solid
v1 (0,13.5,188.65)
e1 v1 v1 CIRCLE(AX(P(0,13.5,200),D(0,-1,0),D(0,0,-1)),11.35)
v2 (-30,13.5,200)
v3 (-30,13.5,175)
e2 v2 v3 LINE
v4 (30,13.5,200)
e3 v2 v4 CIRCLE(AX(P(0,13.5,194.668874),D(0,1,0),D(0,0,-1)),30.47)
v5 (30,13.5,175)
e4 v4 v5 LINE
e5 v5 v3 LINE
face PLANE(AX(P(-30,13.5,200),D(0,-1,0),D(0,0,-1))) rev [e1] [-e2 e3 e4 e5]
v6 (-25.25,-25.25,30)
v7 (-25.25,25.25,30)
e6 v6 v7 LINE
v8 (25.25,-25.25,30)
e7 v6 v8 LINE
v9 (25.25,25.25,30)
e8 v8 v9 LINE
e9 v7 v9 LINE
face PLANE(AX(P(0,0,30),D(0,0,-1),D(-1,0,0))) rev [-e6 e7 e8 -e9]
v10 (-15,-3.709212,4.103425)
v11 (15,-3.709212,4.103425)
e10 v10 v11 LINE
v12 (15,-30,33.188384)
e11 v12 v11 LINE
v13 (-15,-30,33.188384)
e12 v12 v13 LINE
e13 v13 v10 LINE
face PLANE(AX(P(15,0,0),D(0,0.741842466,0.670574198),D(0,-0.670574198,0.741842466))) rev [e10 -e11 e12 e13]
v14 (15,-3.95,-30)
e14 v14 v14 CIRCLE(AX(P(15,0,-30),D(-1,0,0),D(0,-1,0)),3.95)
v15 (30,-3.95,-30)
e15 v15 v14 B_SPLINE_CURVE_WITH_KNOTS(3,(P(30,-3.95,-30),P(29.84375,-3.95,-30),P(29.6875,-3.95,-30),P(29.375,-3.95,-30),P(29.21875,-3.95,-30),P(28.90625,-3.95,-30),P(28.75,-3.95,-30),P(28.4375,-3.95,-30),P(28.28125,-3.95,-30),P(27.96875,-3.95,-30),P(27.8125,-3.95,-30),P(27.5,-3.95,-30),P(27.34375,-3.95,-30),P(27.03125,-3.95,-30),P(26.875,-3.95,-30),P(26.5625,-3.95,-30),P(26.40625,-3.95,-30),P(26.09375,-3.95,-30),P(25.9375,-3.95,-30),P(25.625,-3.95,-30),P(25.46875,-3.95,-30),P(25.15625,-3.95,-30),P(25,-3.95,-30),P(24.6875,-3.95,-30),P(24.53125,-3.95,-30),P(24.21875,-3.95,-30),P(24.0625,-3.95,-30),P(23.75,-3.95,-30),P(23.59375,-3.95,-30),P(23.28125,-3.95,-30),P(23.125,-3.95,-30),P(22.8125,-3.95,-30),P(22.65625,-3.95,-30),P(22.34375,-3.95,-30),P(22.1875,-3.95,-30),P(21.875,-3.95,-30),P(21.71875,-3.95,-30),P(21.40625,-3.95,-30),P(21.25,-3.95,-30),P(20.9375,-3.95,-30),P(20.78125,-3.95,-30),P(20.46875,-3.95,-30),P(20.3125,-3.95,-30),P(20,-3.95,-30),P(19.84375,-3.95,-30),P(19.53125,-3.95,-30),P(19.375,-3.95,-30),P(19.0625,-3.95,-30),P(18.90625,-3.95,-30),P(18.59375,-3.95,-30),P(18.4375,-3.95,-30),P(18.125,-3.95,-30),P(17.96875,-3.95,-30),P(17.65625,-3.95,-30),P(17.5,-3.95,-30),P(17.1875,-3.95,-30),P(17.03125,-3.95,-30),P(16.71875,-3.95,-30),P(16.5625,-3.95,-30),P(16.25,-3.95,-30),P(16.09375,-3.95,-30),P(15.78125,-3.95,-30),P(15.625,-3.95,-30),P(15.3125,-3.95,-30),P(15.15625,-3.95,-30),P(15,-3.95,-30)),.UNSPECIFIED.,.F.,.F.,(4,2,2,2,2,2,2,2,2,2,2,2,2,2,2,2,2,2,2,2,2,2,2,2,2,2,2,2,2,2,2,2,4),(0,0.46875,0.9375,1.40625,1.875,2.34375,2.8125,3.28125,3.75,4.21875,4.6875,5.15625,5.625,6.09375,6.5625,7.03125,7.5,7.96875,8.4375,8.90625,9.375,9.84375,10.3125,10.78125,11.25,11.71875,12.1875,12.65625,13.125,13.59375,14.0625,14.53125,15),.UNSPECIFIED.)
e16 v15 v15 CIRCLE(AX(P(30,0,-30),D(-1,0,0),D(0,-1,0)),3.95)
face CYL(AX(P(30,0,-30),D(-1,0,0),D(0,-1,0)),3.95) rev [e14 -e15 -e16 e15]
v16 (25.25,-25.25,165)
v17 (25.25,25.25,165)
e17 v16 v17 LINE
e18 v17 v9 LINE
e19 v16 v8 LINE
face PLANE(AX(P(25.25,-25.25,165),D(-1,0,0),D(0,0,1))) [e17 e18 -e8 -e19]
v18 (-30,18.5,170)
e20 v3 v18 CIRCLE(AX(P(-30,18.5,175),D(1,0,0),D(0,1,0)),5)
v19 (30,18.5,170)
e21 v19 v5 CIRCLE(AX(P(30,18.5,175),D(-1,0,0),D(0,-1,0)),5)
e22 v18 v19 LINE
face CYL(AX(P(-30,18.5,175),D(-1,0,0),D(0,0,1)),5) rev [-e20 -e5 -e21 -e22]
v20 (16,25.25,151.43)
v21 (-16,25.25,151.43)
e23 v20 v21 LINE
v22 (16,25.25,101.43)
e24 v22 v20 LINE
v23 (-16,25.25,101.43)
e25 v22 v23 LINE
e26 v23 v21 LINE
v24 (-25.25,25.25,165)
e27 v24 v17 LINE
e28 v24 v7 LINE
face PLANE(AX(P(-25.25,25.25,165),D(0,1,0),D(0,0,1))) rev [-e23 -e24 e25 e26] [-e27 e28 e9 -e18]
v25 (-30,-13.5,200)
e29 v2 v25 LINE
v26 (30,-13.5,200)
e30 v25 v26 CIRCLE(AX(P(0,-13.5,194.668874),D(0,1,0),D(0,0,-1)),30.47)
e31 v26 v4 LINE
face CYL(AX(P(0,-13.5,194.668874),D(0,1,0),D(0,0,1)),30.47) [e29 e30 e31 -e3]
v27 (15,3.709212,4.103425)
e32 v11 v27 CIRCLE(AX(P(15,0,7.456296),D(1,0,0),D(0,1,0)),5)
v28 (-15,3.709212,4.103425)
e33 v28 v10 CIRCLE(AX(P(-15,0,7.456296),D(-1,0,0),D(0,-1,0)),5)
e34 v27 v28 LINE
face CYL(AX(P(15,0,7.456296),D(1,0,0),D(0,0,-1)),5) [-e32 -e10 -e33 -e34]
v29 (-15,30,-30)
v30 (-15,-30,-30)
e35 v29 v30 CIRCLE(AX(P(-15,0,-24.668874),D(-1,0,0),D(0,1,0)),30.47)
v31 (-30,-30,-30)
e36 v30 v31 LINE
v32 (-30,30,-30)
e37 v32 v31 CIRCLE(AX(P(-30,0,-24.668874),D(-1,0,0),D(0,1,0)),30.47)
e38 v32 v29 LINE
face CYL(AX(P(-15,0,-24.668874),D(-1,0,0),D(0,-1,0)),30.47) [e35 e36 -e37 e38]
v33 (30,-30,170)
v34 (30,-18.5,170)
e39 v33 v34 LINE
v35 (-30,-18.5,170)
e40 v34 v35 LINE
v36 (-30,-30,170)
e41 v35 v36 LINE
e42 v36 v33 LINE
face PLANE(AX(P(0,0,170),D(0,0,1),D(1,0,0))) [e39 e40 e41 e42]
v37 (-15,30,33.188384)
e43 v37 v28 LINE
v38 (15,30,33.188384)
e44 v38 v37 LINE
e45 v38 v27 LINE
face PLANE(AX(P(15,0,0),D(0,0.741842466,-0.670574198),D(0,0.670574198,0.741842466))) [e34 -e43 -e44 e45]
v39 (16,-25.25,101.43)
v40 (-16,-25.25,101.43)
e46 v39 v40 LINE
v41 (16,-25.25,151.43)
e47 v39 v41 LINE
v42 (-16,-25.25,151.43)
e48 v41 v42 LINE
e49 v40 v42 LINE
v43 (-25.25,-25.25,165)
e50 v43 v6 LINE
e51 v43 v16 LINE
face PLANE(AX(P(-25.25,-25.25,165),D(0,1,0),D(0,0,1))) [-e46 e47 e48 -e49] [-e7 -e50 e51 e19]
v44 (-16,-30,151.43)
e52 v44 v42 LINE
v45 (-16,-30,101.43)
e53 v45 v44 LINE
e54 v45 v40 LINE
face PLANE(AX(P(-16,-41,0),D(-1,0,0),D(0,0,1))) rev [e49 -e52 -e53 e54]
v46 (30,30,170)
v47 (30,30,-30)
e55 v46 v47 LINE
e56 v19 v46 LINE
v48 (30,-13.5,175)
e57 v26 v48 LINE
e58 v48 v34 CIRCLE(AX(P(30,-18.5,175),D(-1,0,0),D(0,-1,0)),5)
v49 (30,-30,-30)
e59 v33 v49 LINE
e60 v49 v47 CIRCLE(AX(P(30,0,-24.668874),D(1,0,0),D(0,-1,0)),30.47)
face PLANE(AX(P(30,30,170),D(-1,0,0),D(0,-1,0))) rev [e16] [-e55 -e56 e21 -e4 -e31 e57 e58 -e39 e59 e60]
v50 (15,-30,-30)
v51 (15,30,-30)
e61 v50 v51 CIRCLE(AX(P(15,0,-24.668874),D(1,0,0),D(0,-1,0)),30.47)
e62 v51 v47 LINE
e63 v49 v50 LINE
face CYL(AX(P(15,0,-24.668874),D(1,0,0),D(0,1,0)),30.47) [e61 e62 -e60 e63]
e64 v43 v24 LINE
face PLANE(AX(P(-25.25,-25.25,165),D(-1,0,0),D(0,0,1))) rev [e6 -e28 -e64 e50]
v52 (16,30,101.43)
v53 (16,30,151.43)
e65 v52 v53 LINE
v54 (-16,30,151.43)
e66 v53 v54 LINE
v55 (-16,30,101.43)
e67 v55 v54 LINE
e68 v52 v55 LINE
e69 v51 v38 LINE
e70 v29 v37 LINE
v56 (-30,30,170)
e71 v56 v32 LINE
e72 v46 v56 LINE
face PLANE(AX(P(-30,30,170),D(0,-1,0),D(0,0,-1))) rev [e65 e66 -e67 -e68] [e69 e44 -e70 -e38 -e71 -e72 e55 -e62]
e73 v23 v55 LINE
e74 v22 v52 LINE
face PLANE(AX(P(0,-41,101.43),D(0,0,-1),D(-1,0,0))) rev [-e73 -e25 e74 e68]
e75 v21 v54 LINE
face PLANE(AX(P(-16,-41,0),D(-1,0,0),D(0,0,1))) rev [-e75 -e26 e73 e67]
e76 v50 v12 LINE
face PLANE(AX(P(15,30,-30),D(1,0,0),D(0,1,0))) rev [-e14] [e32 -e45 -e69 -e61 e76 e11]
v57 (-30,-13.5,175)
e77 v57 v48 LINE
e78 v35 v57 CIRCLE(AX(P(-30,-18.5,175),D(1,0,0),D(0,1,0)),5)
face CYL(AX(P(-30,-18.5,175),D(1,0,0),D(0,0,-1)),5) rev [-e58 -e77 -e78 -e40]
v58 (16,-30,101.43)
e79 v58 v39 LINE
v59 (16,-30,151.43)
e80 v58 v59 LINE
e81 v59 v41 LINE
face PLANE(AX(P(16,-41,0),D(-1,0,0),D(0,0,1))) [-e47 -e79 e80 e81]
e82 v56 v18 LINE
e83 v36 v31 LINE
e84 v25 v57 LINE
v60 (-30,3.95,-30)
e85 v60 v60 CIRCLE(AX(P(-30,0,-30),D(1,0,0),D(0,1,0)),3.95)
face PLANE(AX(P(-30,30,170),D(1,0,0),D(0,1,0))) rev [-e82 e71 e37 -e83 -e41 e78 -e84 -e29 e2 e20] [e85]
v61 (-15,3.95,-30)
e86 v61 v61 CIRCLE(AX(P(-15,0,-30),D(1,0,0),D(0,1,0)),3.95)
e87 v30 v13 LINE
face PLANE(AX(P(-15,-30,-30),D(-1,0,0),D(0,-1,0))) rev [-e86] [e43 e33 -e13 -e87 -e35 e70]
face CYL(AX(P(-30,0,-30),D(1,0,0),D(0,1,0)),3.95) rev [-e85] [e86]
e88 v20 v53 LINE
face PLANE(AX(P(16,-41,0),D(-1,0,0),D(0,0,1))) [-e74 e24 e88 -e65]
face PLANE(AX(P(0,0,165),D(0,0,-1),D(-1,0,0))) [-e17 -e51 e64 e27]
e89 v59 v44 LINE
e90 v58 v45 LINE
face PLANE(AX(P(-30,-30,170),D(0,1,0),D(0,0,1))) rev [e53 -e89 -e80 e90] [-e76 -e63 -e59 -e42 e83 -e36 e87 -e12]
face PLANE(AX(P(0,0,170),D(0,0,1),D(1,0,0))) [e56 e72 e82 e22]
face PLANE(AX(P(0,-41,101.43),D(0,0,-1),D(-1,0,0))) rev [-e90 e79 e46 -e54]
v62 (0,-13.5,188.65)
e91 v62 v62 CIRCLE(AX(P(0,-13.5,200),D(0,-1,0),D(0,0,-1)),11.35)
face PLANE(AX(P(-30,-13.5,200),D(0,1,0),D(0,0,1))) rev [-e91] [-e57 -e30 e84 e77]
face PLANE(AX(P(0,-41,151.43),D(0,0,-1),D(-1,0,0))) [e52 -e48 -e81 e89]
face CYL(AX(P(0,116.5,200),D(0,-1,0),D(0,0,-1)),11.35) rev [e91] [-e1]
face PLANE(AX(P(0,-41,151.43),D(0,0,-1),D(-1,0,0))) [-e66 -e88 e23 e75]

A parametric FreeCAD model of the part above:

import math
import FreeCAD as App
import Part
import Sketcher
from FreeCAD import Vector
Q = App.Units.Quantity


def edges_at(feature, points):
    """Names of the edges that pass closest to the given points."""
    edges = feature.Shape.Edges
    near = lambda p: min(range(len(edges)), key=lambda i: edges[i].distToShape(Part.Vertex(*p))[0])
    return sorted({f"Edge{near(p) + 1}" for p in points})


def add_polygon(sketch, points):
    """Adds a closed chain of lines whose ends are joined by coincident constraints."""
    first, n = sketch.GeometryCount, len(points)
    for a, b in zip(points, points[1:] + points[:1]):
        sketch.addGeometry(Part.LineSegment(App.Vector(*a, 0), App.Vector(*b, 0)), False)
    for i in range(n):
        sketch.addConstraint(Sketcher.Constraint("Coincident", first + i, 2, first + (i + 1) % n, 1))

doc = App.newDocument("Part")
params = doc.addObject("Spreadsheet::Sheet", "Params")
for row, (alias, value) in enumerate([
    ("sketch1_width", "60 mm"),
    ("pad1_length", "170 mm"),
    ("sketch2_width", "15 mm"),
    ("sketch2_height", "60 mm"),
    ("pad2_length", "30 mm"),
    ("sketch3_width", "60 mm"),
    ("sketch3_radius", "30.47 mm"),
    ("pad3_length", "15 mm"),
    ("sketch4_width", "60 mm"),
    ("sketch4_radius", "30.47 mm"),
    ("pad4_length", "15 mm"),
    ("sketch5_width", "60 mm"),
    ("sketch5_height", "27 mm"),
    ("pad5_length", "30 mm"),
    ("sketch6_width", "60 mm"),
    ("sketch6_radius", "30.47 mm"),
    ("pad6_length", "27 mm"),
    ("sketch7_width", "50.5 mm"),
    ("pocket1_length", "5 mm"),
    ("pocket1_length2", "130 mm"),
    ("sketch8_diameter", "22.7 mm"),
    ("pocket2_length", "130 mm"),
    ("sketch9_diameter", "7.9 mm"),
    ("sketch10_diameter", "7.9 mm"),
    ("sketch11_width", "30 mm"),
    ("pocket5_length", "30 mm"),
    ("fillet_radius", "5 mm"),
    ("fillet2_radius", "5 mm"),
    ("sketch12_width", "32 mm"),
    ("sketch12_height", "50 mm"),
    ("pocket6_length", "71 mm"),
], start=1):
    params.set(f"A{row}", alias)
    params.set(f"B{row}", "=" + value)
    params.setAlias(f"B{row}", alias)

body = doc.addObject("PartDesign::Body", "Body")

# Sketch on XY plane
sketch1 = doc.addObject("Sketcher::SketchObject", "Sketch")
body.addObject(sketch1)
sketch1.AttachmentSupport = (doc.XY_Plane, [""])
sketch1.MapMode = "FlatFace"
add_polygon(sketch1, [(-30, 30), (-30, -30), (30, -30), (30, 30)])  # lines 0-3
sketch1.addConstraint(Sketcher.Constraint("Vertical", 0))
sketch1.addConstraint(Sketcher.Constraint("Horizontal", 1))
sketch1.addConstraint(Sketcher.Constraint("Vertical", 2))
sketch1.addConstraint(Sketcher.Constraint("Horizontal", 3))
sketch1.addConstraint(Sketcher.Constraint("Symmetric", 0, 2, 2, 2, -1, 1))
sketch1.addConstraint(Sketcher.Constraint("Equal", 3, 0))
sketch1.addConstraint(Sketcher.Constraint("DistanceX", 1, 1, 1, 2, Q("60 mm")))
sketch1.setExpression("Constraints[10]", "Params.sketch1_width")
pad1 = doc.addObject("PartDesign::Pad", "Pad")
body.addObject(pad1)
pad1.Profile = sketch1
pad1.setExpression("Length", "Params.pad1_length")

# Sketch on XY plane
sketch2 = doc.addObject("Sketcher::SketchObject", "Sketch001")
body.addObject(sketch2)
sketch2.AttachmentSupport = (doc.XY_Plane, [""])
sketch2.MapMode = "FlatFace"
add_polygon(sketch2, [(-15, 30), (-15, -30), (-30, -30), (-30, 30)])  # lines 0-3
add_polygon(sketch2, [(30, 30), (30, -30), (15, -30), (15, 30)])  # lines 4-7
sketch2.addConstraint(Sketcher.Constraint("Vertical", 0))
sketch2.addConstraint(Sketcher.Constraint("Horizontal", 1))
sketch2.addConstraint(Sketcher.Constraint("Vertical", 2))
sketch2.addConstraint(Sketcher.Constraint("Horizontal", 3))
sketch2.addConstraint(Sketcher.Constraint("Vertical", 4))
sketch2.addConstraint(Sketcher.Constraint("Horizontal", 5))
sketch2.addConstraint(Sketcher.Constraint("Vertical", 6))
sketch2.addConstraint(Sketcher.Constraint("Horizontal", 7))
sketch2.addConstraint(Sketcher.Constraint("Symmetric", 2, 2, 4, 2, -1, 1))
sketch2.addConstraint(Sketcher.Constraint("Symmetric", 0, 2, 6, 2, -1, 1))
sketch2.addConstraint(Sketcher.Constraint("Horizontal", 1, 2, 4, 2))
sketch2.addConstraint(Sketcher.Constraint("DistanceX", 1, 2, 1, 1, Q("15 mm")))
sketch2.addConstraint(Sketcher.Constraint("DistanceY", 0, 2, 0, 1, Q("60 mm")))
sketch2.addConstraint(Sketcher.Constraint("DistanceX", 0, 2, -1, 1, Q("15 mm")))
sketch2.setExpression("Constraints[19]", "Params.sketch2_width")
sketch2.setExpression("Constraints[20]", "Params.sketch2_height")
pad2 = doc.addObject("PartDesign::Pad", "Pad001")
body.addObject(pad2)
pad2.Profile = sketch2
pad2.setExpression("Length", "Params.pad2_length")
pad2.Reversed = True

# Sketch on YZ plane
sketch3 = doc.addObject("Sketcher::SketchObject", "Sketch002")
body.addObject(sketch3)
sketch3.AttachmentSupport = (doc.YZ_Plane, [""])
sketch3.MapMode = "FlatFace"
sketch3.AttachmentOffset = App.Placement(Vector(0, 0, 30), App.Rotation())
sketch3.addGeometry(Part.LineSegment(Vector(30, -30, 0), Vector(-30, -30, 0)), False)
sketch3.addGeometry(Part.ArcOfCircle(Part.Circle(Vector(0, -25, 0), Vector(0, 0, 1), 30), math.radians(-170), math.radians(-10)), False)
sketch3.addConstraint(Sketcher.Constraint("Coincident", 0, 1, 1, 2))
sketch3.addConstraint(Sketcher.Constraint("Coincident", 1, 1, 0, 2))
sketch3.addConstraint(Sketcher.Constraint("Horizontal", 0))
sketch3.addConstraint(Sketcher.Constraint("PointOnObject", 1, 3, -2))
sketch3.addConstraint(Sketcher.Constraint("DistanceX", 0, 2, 0, 1, Q("60 mm")))
sketch3.addConstraint(Sketcher.Constraint("Radius", 1, Q("30.47 mm")))
sketch3.addConstraint(Sketcher.Constraint("DistanceY", 0, 1, -1, 1, Q("30 mm")))
sketch3.setExpression("Constraints[4]", "Params.sketch3_width")
sketch3.setExpression("Constraints[5]", "Params.sketch3_radius")
pad3 = doc.addObject("PartDesign::Pad", "Pad002")
body.addObject(pad3)
pad3.Profile = sketch3
pad3.setExpression("Length", "Params.pad3_length")
pad3.Reversed = True

# Sketch on YZ plane
sketch4 = doc.addObject("Sketcher::SketchObject", "Sketch003")
body.addObject(sketch4)
sketch4.AttachmentSupport = (doc.YZ_Plane, [""])
sketch4.MapMode = "FlatFace"
sketch4.AttachmentOffset = App.Placement(Vector(0, 0, -15), App.Rotation())
sketch4.addGeometry(Part.LineSegment(Vector(-30, -30, 0), Vector(30, -30, 0)), False)
sketch4.addGeometry(Part.ArcOfCircle(Part.Circle(Vector(0, -25, 0), Vector(0, 0, 1), 30), math.radians(-170), math.radians(-10)), False)
sketch4.addConstraint(Sketcher.Constraint("Coincident", 0, 1, 1, 1))
sketch4.addConstraint(Sketcher.Constraint("Coincident", 1, 2, 0, 2))
sketch4.addConstraint(Sketcher.Constraint("Horizontal", 0))
sketch4.addConstraint(Sketcher.Constraint("PointOnObject", 1, 3, -2))
sketch4.addConstraint(Sketcher.Constraint("DistanceX", 0, 1, 0, 2, Q("60 mm")))
sketch4.addConstraint(Sketcher.Constraint("Radius", 1, Q("30.47 mm")))
sketch4.addConstraint(Sketcher.Constraint("DistanceY", 0, 1, -1, 1, Q("30 mm")))
sketch4.setExpression("Constraints[4]", "Params.sketch4_width")
sketch4.setExpression("Constraints[5]", "Params.sketch4_radius")
pad4 = doc.addObject("PartDesign::Pad", "Pad003")
body.addObject(pad4)
pad4.Profile = sketch4
pad4.setExpression("Length", "Params.pad4_length")
pad4.Reversed = True

# Sketch on XY plane
sketch5 = doc.addObject("Sketcher::SketchObject", "Sketch004")
body.addObject(sketch5)
sketch5.AttachmentSupport = (doc.XY_Plane, [""])
sketch5.MapMode = "FlatFace"
sketch5.AttachmentOffset = App.Placement(Vector(0, 0, 170), App.Rotation())
add_polygon(sketch5, [(-30, 14), (-30, -14), (30, -14), (30, 14)])  # lines 0-3
sketch5.addConstraint(Sketcher.Constraint("Vertical", 0))
sketch5.addConstraint(Sketcher.Constraint("Horizontal", 1))
sketch5.addConstraint(Sketcher.Constraint("Vertical", 2))
sketch5.addConstraint(Sketcher.Constraint("Horizontal", 3))
sketch5.addConstraint(Sketcher.Constraint("Symmetric", 0, 2, 2, 2, -1, 1))
sketch5.addConstraint(Sketcher.Constraint("DistanceX", 1, 1, 1, 2, Q("60 mm")))
sketch5.addConstraint(Sketcher.Constraint("DistanceY", 0, 2, 0, 1, Q("27 mm")))
sketch5.setExpression("Constraints[9]", "Params.sketch5_width")
sketch5.setExpression("Constraints[10]", "Params.sketch5_height")
pad5 = doc.addObject("PartDesign::Pad", "Pad004")
body.addObject(pad5)
pad5.Profile = sketch5
pad5.setExpression("Length", "Params.pad5_length")

# Sketch on XZ plane
sketch6 = doc.addObject("Sketcher::SketchObject", "Sketch005")
body.addObject(sketch6)
sketch6.AttachmentSupport = (doc.XZ_Plane, [""])
sketch6.MapMode = "FlatFace"
sketch6.AttachmentOffset = App.Placement(Vector(0, 0, -13.5), App.Rotation())
sketch6.addGeometry(Part.LineSegment(Vector(30, 200, 0), Vector(-30, 200, 0)), False)
sketch6.addGeometry(Part.ArcOfCircle(Part.Circle(Vector(0, 195, 0), Vector(0, 0, 1), 30), math.radians(10), math.radians(170)), False)
sketch6.addConstraint(Sketcher.Constraint("Coincident", 0, 1, 1, 1))
sketch6.addConstraint(Sketcher.Constraint("Coincident", 1, 2, 0, 2))
sketch6.addConstraint(Sketcher.Constraint("Horizontal", 0))
sketch6.addConstraint(Sketcher.Constraint("PointOnObject", 1, 3, -2))
sketch6.addConstraint(Sketcher.Constraint("DistanceX", 0, 2, 0, 1, Q("60 mm")))
sketch6.addConstraint(Sketcher.Constraint("Radius", 1, Q("30.47 mm")))
sketch6.addConstraint(Sketcher.Constraint("DistanceY", -1, 1, 0, 1, Q("200 mm")))
sketch6.setExpression("Constraints[4]", "Params.sketch6_width")
sketch6.setExpression("Constraints[5]", "Params.sketch6_radius")
pad6 = doc.addObject("PartDesign::Pad", "Pad005")
body.addObject(pad6)
pad6.Profile = sketch6
pad6.setExpression("Length", "Params.pad6_length")

# Sketch on XY plane
sketch7 = doc.addObject("Sketcher::SketchObject", "Sketch006")
body.addObject(sketch7)
sketch7.AttachmentSupport = (doc.XY_Plane, [""])
sketch7.MapMode = "FlatFace"
sketch7.AttachmentOffset = App.Placement(Vector(0, 0, 160), App.Rotation())
add_polygon(sketch7, [(-25, 25), (-25, -25), (25, -25), (25, 25)])  # lines 0-3
sketch7.addConstraint(Sketcher.Constraint("Vertical", 0))
sketch7.addConstraint(Sketcher.Constraint("Horizontal", 1))
sketch7.addConstraint(Sketcher.Constraint("Vertical", 2))
sketch7.addConstraint(Sketcher.Constraint("Horizontal", 3))
sketch7.addConstraint(Sketcher.Constraint("Symmetric", 0, 2, 2, 2, -1, 1))
sketch7.addConstraint(Sketcher.Constraint("Equal", 3, 0))
sketch7.addConstraint(Sketcher.Constraint("DistanceX", 1, 1, 1, 2, Q("50.5 mm")))
sketch7.setExpression("Constraints[10]", "Params.sketch7_width")
pocket1 = doc.addObject("PartDesign::Pocket", "Pocket")
body.addObject(pocket1)
pocket1.Profile = sketch7
pocket1.Type = "TwoLengths"
pocket1.setExpression("Length", "Params.pocket1_length")
pocket1.setExpression("Length2", "Params.pocket1_length2")
pocket1.Reversed = True

# Sketch on XZ plane
sketch8 = doc.addObject("Sketcher::SketchObject", "Sketch007")
body.addObject(sketch8)
sketch8.AttachmentSupport = (doc.XZ_Plane, [""])
sketch8.MapMode = "FlatFace"
sketch8.AttachmentOffset = App.Placement(Vector(0, 0, 13.5), App.Rotation())
sketch8.addGeometry(Part.Circle(Vector(0, 200, 0), Vector(0, 0, 1), 11), False)
sketch8.addConstraint(Sketcher.Constraint("PointOnObject", 0, 3, -2))
sketch8.addConstraint(Sketcher.Constraint("Diameter", 0, Q("22.7 mm")))
sketch8.addConstraint(Sketcher.Constraint("DistanceY", -1, 1, 0, 3, Q("200 mm")))
sketch8.setExpression("Constraints[1]", "Params.sketch8_diameter")
pocket2 = doc.addObject("PartDesign::Pocket", "Pocket001")
body.addObject(pocket2)
pocket2.Profile = sketch8
pocket2.setExpression("Length", "Params.pocket2_length")

# Sketch on YZ plane
sketch9 = doc.addObject("Sketcher::SketchObject", "Sketch008")
body.addObject(sketch9)
sketch9.AttachmentSupport = (doc.YZ_Plane, [""])
sketch9.MapMode = "FlatFace"
sketch9.AttachmentOffset = App.Placement(Vector(0, 0, 15), App.Rotation())
sketch9.addGeometry(Part.Circle(Vector(0, -30, 0), Vector(0, 0, 1), 4), False)
sketch9.addConstraint(Sketcher.Constraint("PointOnObject", 0, 3, -2))
sketch9.addConstraint(Sketcher.Constraint("Diameter", 0, Q("7.9 mm")))
sketch9.addConstraint(Sketcher.Constraint("DistanceY", 0, 3, -1, 1, Q("30 mm")))
sketch9.setExpression("Constraints[1]", "Params.sketch9_diameter")
pocket3 = doc.addObject("PartDesign::Pocket", "Pocket002")
body.addObject(pocket3)
pocket3.Profile = sketch9
pocket3.Type = "ThroughAll"
pocket3.Reversed = True

# Sketch on YZ plane
sketch10 = doc.addObject("Sketcher::SketchObject", "Sketch009")
body.addObject(sketch10)
sketch10.AttachmentSupport = (doc.YZ_Plane, [""])
sketch10.MapMode = "FlatFace"
sketch10.AttachmentOffset = App.Placement(Vector(0, 0, -15), App.Rotation())
sketch10.addGeometry(Part.Circle(Vector(0, -30, 0), Vector(0, 0, 1), 4), False)
sketch10.addConstraint(Sketcher.Constraint("PointOnObject", 0, 3, -2))
sketch10.addConstraint(Sketcher.Constraint("Diameter", 0, Q("7.9 mm")))
sketch10.addConstraint(Sketcher.Constraint("DistanceY", 0, 3, -1, 1, Q("30 mm")))
sketch10.setExpression("Constraints[1]", "Params.sketch10_diameter")
pocket4 = doc.addObject("PartDesign::Pocket", "Pocket003")
body.addObject(pocket4)
pocket4.Profile = sketch10
pocket4.Type = "ThroughAll"

# Sketch on YZ plane
sketch11 = doc.addObject("Sketcher::SketchObject", "Sketch010")
body.addObject(sketch11)
sketch11.AttachmentSupport = (doc.YZ_Plane, [""])
sketch11.MapMode = "FlatFace"
sketch11.AttachmentOffset = App.Placement(Vector(0, 0, -15), App.Rotation())
add_polygon(sketch11, [(-30, 0), (0, 0), (-30, 33)])  # lines 0-2
add_polygon(sketch11, [(30, 33), (0, 0), (30, 0)])  # lines 3-5
sketch11.addConstraint(Sketcher.Constraint("Horizontal", 0))
sketch11.addConstraint(Sketcher.Constraint("Vertical", 2))
sketch11.addConstraint(Sketcher.Constraint("Horizontal", 4))
sketch11.addConstraint(Sketcher.Constraint("Vertical", 5))
sketch11.addConstraint(Sketcher.Constraint("Coincident", 0, 2, -1, 1))
sketch11.addConstraint(Sketcher.Constraint("Coincident", 3, 2, -1, 1))
sketch11.addConstraint(Sketcher.Constraint("Symmetric", 1, 2, 5, 2, -2))
sketch11.addConstraint(Sketcher.Constraint("DistanceX", 0, 1, 0, 2, Q("30 mm")))
sketch11.addConstraint(Sketcher.Constraint("Distance", 1, Q("44.737779 mm")))
sketch11.setExpression("Constraints[13]", "Params.sketch11_width")
pocket5 = doc.addObject("PartDesign::Pocket", "Pocket004")
body.addObject(pocket5)
pocket5.Profile = sketch11
pocket5.setExpression("Length", "Params.pocket5_length")
pocket5.Reversed = True
doc.recompute()

fillet = doc.addObject("PartDesign::Fillet", "Fillet")
body.addObject(fillet)
fillet.Base = (pocket5, edges_at(pocket5, [(0, 0, 0)]))
fillet.setExpression("Radius", "Params.fillet_radius")
doc.recompute()

fillet2 = doc.addObject("PartDesign::Fillet", "Fillet001")
body.addObject(fillet2)
fillet2.Base = (fillet, edges_at(fillet, [(0, 13.5, 170), (0, -13.5, 170)]))
fillet2.setExpression("Radius", "Params.fillet2_radius")

# Sketch on XZ plane
sketch12 = doc.addObject("Sketcher::SketchObject", "Sketch011")
body.addObject(sketch12)
sketch12.AttachmentSupport = (doc.XZ_Plane, [""])
sketch12.MapMode = "FlatFace"
sketch12.AttachmentOffset = App.Placement(Vector(0, 0, -30), App.Rotation())
add_polygon(sketch12, [(16, 151), (16, 101), (-16, 101), (-16, 151)])  # lines 0-3
sketch12.addConstraint(Sketcher.Constraint("Vertical", 0))
sketch12.addConstraint(Sketcher.Constraint("Horizontal", 1))
sketch12.addConstraint(Sketcher.Constraint("Vertical", 2))
sketch12.addConstraint(Sketcher.Constraint("Horizontal", 3))
sketch12.addConstraint(Sketcher.Constraint("DistanceX", 1, 2, 1, 1, Q("32 mm")))
sketch12.addConstraint(Sketcher.Constraint("DistanceY", 0, 2, 0, 1, Q("50 mm")))
sketch12.addConstraint(Sketcher.Constraint("DistanceX", -1, 1, 0, 2, Q("16 mm")))
sketch12.addConstraint(Sketcher.Constraint("DistanceY", -1, 1, 0, 2, Q("101.43 mm")))
sketch12.setExpression("Constraints[8]", "Params.sketch12_width")
sketch12.setExpression("Constraints[9]", "Params.sketch12_height")
pocket6 = doc.addObject("PartDesign::Pocket", "Pocket005")
body.addObject(pocket6)
pocket6.Profile = sketch12
pocket6.setExpression("Length", "Params.pocket6_length")
pocket6.Reversed = True

doc.recompute()
